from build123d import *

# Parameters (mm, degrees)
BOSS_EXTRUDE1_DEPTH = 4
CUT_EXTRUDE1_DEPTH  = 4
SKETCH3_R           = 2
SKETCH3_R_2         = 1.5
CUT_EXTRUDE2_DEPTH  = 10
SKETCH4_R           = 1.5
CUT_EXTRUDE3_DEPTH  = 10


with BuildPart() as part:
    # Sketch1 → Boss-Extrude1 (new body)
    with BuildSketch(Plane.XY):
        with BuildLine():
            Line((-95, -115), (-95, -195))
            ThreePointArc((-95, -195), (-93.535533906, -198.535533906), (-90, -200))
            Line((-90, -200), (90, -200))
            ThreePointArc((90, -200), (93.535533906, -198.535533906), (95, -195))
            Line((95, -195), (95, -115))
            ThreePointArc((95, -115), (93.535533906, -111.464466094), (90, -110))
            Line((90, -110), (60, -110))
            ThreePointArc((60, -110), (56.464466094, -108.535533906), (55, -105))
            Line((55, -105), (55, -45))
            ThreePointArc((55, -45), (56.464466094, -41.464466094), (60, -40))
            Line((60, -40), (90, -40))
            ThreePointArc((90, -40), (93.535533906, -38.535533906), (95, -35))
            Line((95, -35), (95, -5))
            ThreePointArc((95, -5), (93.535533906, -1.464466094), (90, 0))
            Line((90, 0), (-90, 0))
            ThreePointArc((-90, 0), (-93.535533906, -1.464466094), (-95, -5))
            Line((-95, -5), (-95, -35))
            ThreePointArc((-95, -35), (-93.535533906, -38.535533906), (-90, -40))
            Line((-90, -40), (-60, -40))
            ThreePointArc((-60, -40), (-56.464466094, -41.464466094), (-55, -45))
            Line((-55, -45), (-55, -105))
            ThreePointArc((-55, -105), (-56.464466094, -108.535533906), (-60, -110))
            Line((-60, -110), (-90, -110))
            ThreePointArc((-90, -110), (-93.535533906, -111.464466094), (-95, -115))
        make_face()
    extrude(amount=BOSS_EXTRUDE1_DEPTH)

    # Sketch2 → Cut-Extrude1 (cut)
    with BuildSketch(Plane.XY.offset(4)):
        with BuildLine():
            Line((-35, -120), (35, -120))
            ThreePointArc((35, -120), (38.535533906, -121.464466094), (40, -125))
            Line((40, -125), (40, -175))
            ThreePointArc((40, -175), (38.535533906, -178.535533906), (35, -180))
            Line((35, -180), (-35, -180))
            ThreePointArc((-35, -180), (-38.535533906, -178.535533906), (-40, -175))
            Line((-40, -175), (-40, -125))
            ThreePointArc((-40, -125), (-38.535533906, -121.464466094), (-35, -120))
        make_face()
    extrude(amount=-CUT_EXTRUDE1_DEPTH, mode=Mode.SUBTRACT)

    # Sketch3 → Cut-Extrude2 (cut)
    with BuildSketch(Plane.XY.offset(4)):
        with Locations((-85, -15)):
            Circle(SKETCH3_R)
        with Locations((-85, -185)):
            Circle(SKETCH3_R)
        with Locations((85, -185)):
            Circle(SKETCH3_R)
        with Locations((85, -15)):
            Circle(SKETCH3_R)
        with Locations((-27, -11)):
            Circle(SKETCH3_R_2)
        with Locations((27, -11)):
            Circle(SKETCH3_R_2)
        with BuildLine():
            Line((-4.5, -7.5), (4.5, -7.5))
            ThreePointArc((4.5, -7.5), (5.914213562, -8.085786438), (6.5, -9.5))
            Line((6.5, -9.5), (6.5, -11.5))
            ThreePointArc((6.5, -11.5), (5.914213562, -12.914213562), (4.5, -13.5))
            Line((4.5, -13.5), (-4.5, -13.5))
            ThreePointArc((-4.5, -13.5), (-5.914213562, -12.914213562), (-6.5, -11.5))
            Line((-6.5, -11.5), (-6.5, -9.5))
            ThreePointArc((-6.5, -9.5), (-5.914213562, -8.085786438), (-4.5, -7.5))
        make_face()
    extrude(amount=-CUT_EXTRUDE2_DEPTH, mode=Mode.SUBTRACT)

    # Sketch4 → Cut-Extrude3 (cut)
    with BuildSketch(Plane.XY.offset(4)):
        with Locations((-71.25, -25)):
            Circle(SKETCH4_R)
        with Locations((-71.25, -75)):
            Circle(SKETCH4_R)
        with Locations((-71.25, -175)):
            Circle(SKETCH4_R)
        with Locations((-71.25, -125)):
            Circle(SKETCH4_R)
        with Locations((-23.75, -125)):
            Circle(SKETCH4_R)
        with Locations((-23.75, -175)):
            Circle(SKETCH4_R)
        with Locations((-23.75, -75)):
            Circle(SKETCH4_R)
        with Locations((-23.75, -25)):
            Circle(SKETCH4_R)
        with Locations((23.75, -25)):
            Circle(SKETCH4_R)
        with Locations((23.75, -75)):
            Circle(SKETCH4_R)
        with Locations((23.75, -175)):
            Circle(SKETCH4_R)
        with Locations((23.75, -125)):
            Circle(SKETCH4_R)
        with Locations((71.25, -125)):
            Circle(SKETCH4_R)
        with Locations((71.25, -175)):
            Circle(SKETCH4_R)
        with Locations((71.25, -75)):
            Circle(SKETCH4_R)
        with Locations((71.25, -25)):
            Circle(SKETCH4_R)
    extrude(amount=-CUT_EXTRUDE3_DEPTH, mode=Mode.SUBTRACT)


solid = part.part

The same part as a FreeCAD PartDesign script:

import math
import FreeCAD as App
import Part
import Sketcher
from FreeCAD import Vector

doc = App.newDocument("Part")
body = doc.addObject("PartDesign::Body", "Body")

sketch1 = body.newObject("Sketcher::SketchObject", "Sketch")
sketch1.AttachmentSupport = (doc.getObject("XY_Plane"), [""])
sketch1.MapMode = "FlatFace"
sketch1.addGeometry(Part.LineSegment(Vector(-95, -115, 0), Vector(-95, -195, 0)), False)
sketch1.addGeometry(Part.ArcOfCircle(Part.Circle(Vector(-90, -195, 0), Vector(0, 0, 1), 5), math.radians(180), math.radians(270)), False)
sketch1.addGeometry(Part.LineSegment(Vector(-90, -200, 0), Vector(90, -200, 0)), False)
sketch1.addGeometry(Part.ArcOfCircle(Part.Circle(Vector(90, -195, 0), Vector(0, 0, 1), 5), math.radians(-90), math.radians(0)), False)
sketch1.addGeometry(Part.LineSegment(Vector(95, -195, 0), Vector(95, -115, 0)), False)
sketch1.addGeometry(Part.ArcOfCircle(Part.Circle(Vector(90, -115, 0), Vector(0, 0, 1), 5), math.radians(0), math.radians(90)), False)
sketch1.addGeometry(Part.LineSegment(Vector(90, -110, 0), Vector(60, -110, 0)), False)
sketch1.addGeometry(Part.ArcOfCircle(Part.Circle(Vector(60, -105, 0), Vector(0, 0, 1), 5), math.radians(180), math.radians(270)), False)
sketch1.addGeometry(Part.LineSegment(Vector(55, -105, 0), Vector(55, -45, 0)), False)
sketch1.addGeometry(Part.ArcOfCircle(Part.Circle(Vector(60, -45, 0), Vector(0, 0, 1), 5), math.radians(90), math.radians(180)), False)
sketch1.addGeometry(Part.LineSegment(Vector(60, -40, 0), Vector(90, -40, 0)), False)
sketch1.addGeometry(Part.ArcOfCircle(Part.Circle(Vector(90, -35, 0), Vector(0, 0, 1), 5), math.radians(-90), math.radians(0)), False)
sketch1.addGeometry(Part.LineSegment(Vector(95, -35, 0), Vector(95, -5, 0)), False)
sketch1.addGeometry(Part.ArcOfCircle(Part.Circle(Vector(90, -5, 0), Vector(0, 0, 1), 5), math.radians(0), math.radians(90)), False)
sketch1.addGeometry(Part.LineSegment(Vector(90, 0, 0), Vector(-90, 0, 0)), False)
sketch1.addGeometry(Part.ArcOfCircle(Part.Circle(Vector(-90, -5, 0), Vector(0, 0, 1), 5), math.radians(90), math.radians(180)), False)
sketch1.addGeometry(Part.LineSegment(Vector(-95, -5, 0), Vector(-95, -35, 0)), False)
sketch1.addGeometry(Part.ArcOfCircle(Part.Circle(Vector(-90, -35, 0), Vector(0, 0, 1), 5), math.radians(180), math.radians(270)), False)
sketch1.addGeometry(Part.LineSegment(Vector(-90, -40, 0), Vector(-60, -40, 0)), False)
sketch1.addGeometry(Part.ArcOfCircle(Part.Circle(Vector(-60, -45, 0), Vector(0, 0, 1), 5), math.radians(0), math.radians(90)), False)
sketch1.addGeometry(Part.LineSegment(Vector(-55, -45, 0), Vector(-55, -105, 0)), False)
sketch1.addGeometry(Part.ArcOfCircle(Part.Circle(Vector(-60, -105, 0), Vector(0, 0, 1), 5), math.radians(-90), math.radians(0)), False)
sketch1.addGeometry(Part.LineSegment(Vector(-60, -110, 0), Vector(-90, -110, 0)), False)
sketch1.addGeometry(Part.ArcOfCircle(Part.Circle(Vector(-90, -115, 0), Vector(0, 0, 1), 5), math.radians(90), math.radians(180)), False)
sketch1.addConstraint(Sketcher.Constraint("Tangent", 0, 2, 1, 1))
sketch1.addConstraint(Sketcher.Constraint("Tangent", 1, 2, 2, 1))
sketch1.addConstraint(Sketcher.Constraint("Tangent", 2, 2, 3, 1))
sketch1.addConstraint(Sketcher.Constraint("Tangent", 3, 2, 4, 1))
sketch1.addConstraint(Sketcher.Constraint("Tangent", 4, 2, 5, 1))
sketch1.addConstraint(Sketcher.Constraint("Tangent", 5, 2, 6, 1))
sketch1.addConstraint(Sketcher.Constraint("Tangent", 6, 2, 7, 2))
sketch1.addConstraint(Sketcher.Constraint("Tangent", 7, 1, 8, 1))
sketch1.addConstraint(Sketcher.Constraint("Tangent", 8, 2, 9, 2))
sketch1.addConstraint(Sketcher.Constraint("Tangent", 9, 1, 10, 1))
sketch1.addConstraint(Sketcher.Constraint("Tangent", 10, 2, 11, 1))
sketch1.addConstraint(Sketcher.Constraint("Tangent", 11, 2, 12, 1))
sketch1.addConstraint(Sketcher.Constraint("Tangent", 12, 2, 13, 1))
sketch1.addConstraint(Sketcher.Constraint("Tangent", 13, 2, 14, 1))
sketch1.addConstraint(Sketcher.Constraint("Tangent", 14, 2, 15, 1))
sketch1.addConstraint(Sketcher.Constraint("Tangent", 15, 2, 16, 1))
sketch1.addConstraint(Sketcher.Constraint("Tangent", 16, 2, 17, 1))
sketch1.addConstraint(Sketcher.Constraint("Tangent", 17, 2, 18, 1))
sketch1.addConstraint(Sketcher.Constraint("Tangent", 18, 2, 19, 2))
sketch1.addConstraint(Sketcher.Constraint("Tangent", 19, 1, 20, 1))
sketch1.addConstraint(Sketcher.Constraint("Tangent", 20, 2, 21, 2))
sketch1.addConstraint(Sketcher.Constraint("Tangent", 21, 1, 22, 1))
sketch1.addConstraint(Sketcher.Constraint("Tangent", 22, 2, 23, 1))
sketch1.addConstraint(Sketcher.Constraint("Tangent", 23, 2, 0, 1))
sketch1.addConstraint(Sketcher.Constraint("Vertical", 0))
sketch1.addConstraint(Sketcher.Constraint("Horizontal", 2))
sketch1.addConstraint(Sketcher.Constraint("Vertical", 4))
sketch1.addConstraint(Sketcher.Constraint("Horizontal", 6))
sketch1.addConstraint(Sketcher.Constraint("Vertical", 8))
sketch1.addConstraint(Sketcher.Constraint("Horizontal", 10))
sketch1.addConstraint(Sketcher.Constraint("Vertical", 12))
sketch1.addConstraint(Sketcher.Constraint("Horizontal", 14))
sketch1.addConstraint(Sketcher.Constraint("Vertical", 16))
sketch1.addConstraint(Sketcher.Constraint("Horizontal", 18))
sketch1.addConstraint(Sketcher.Constraint("Vertical", 20))
sketch1.addConstraint(Sketcher.Constraint("Horizontal", 22))
sketch1.addConstraint(Sketcher.Constraint("Equal", 1, 3))
sketch1.addConstraint(Sketcher.Constraint("Equal", 3, 5))
sketch1.addConstraint(Sketcher.Constraint("Equal", 5, 7))
sketch1.addConstraint(Sketcher.Constraint("Equal", 7, 9))
sketch1.addConstraint(Sketcher.Constraint("Equal", 9, 11))
sketch1.addConstraint(Sketcher.Constraint("Equal", 11, 13))
sketch1.addConstraint(Sketcher.Constraint("Equal", 13, 15))
sketch1.addConstraint(Sketcher.Constraint("Equal", 15, 17))
sketch1.addConstraint(Sketcher.Constraint("Equal", 17, 19))
sketch1.addConstraint(Sketcher.Constraint("Equal", 19, 21))
sketch1.addConstraint(Sketcher.Constraint("Equal", 21, 23))
sketch1.addConstraint(Sketcher.Constraint("Symmetric", 13, 2, 14, 2, -1, 1))
sketch1.addConstraint(Sketcher.Constraint("Symmetric", 9, 3, 19, 3, -2))
sketch1.addConstraint(Sketcher.Constraint("Symmetric", 5, 3, 23, 3, -2))
sketch1.addConstraint(Sketcher.Constraint("Vertical", 5, 3, 11, 3))
sketch1.addConstraint(Sketcher.Constraint("Equal", 22, 12))
sketch1.addConstraint(Sketcher.Constraint("Radius", 1, 5.0))
sketch1.addConstraint(Sketcher.Constraint("DistanceX", 2, 1, 2, 2, 180.0))
sketch1.addConstraint(Sketcher.Constraint("DistanceX", 6, 2, 6, 1, 30.0))
sketch1.addConstraint(Sketcher.Constraint("DistanceY", 0, 2, 0, 1, 80.0))
sketch1.addConstraint(Sketcher.Constraint("DistanceY", 8, 1, 8, 2, 60.0))
pad1 = body.newObject("PartDesign::Pad", "Pad")
pad1.Profile = sketch1
pad1.Length = 4

sketch2 = body.newObject("Sketcher::SketchObject", "Sketch001")
sketch2.AttachmentSupport = (doc.getObject("XY_Plane"), [""])
sketch2.MapMode = "FlatFace"
sketch2.AttachmentOffset = App.Placement(Vector(0, 0, 4), App.Rotation())
sketch2.addGeometry(Part.LineSegment(Vector(35, -120, 0), Vector(-35, -120, 0)), False)
sketch2.addGeometry(Part.ArcOfCircle(Part.Circle(Vector(-35, -125, 0), Vector(0, 0, 1), 5), math.radians(90), math.radians(180)), False)
sketch2.addGeometry(Part.LineSegment(Vector(-40, -125, 0), Vector(-40, -175, 0)), False)
sketch2.addGeometry(Part.ArcOfCircle(Part.Circle(Vector(-35, -175, 0), Vector(0, 0, 1), 5), math.radians(180), math.radians(270)), False)
sketch2.addGeometry(Part.LineSegment(Vector(-35, -180, 0), Vector(35, -180, 0)), False)
sketch2.addGeometry(Part.ArcOfCircle(Part.Circle(Vector(35, -175, 0), Vector(0, 0, 1), 5), math.radians(-90), math.radians(0)), False)
sketch2.addGeometry(Part.LineSegment(Vector(40, -175, 0), Vector(40, -125, 0)), False)
sketch2.addGeometry(Part.ArcOfCircle(Part.Circle(Vector(35, -125, 0), Vector(0, 0, 1), 5), math.radians(0), math.radians(90)), False)
sketch2.addConstraint(Sketcher.Constraint("Tangent", 0, 2, 1, 1))
sketch2.addConstraint(Sketcher.Constraint("Tangent", 1, 2, 2, 1))
sketch2.addConstraint(Sketcher.Constraint("Tangent", 2, 2, 3, 1))
sketch2.addConstraint(Sketcher.Constraint("Tangent", 3, 2, 4, 1))
sketch2.addConstraint(Sketcher.Constraint("Tangent", 4, 2, 5, 1))
sketch2.addConstraint(Sketcher.Constraint("Tangent", 5, 2, 6, 1))
sketch2.addConstraint(Sketcher.Constraint("Tangent", 6, 2, 7, 1))
sketch2.addConstraint(Sketcher.Constraint("Tangent", 7, 2, 0, 1))
sketch2.addConstraint(Sketcher.Constraint("Horizontal", 0))
sketch2.addConstraint(Sketcher.Constraint("Vertical", 2))
sketch2.addConstraint(Sketcher.Constraint("Horizontal", 4))
sketch2.addConstraint(Sketcher.Constraint("Vertical", 6))
sketch2.addConstraint(Sketcher.Constraint("Equal", 1, 3))
sketch2.addConstraint(Sketcher.Constraint("Equal", 3, 5))
sketch2.addConstraint(Sketcher.Constraint("Equal", 5, 7))
sketch2.addConstraint(Sketcher.Constraint("Radius", 1, 5.0))
sketch2.addConstraint(Sketcher.Constraint("DistanceX", 0, 2, 0, 1, 70.0))
sketch2.addConstraint(Sketcher.Constraint("DistanceY", 2, 2, 2, 1, 50.0))
sketch2.addConstraint(Sketcher.Constraint("DistanceX", 1, 3, -1, 1, 35.0))
sketch2.addConstraint(Sketcher.Constraint("DistanceY", 1, 3, -1, 1, 125.0))
pocket1 = body.newObject("PartDesign::Pocket", "Pocket")
pocket1.Profile = sketch2
pocket1.Length = 4

sketch3 = body.newObject("Sketcher::SketchObject", "Sketch002")
sketch3.AttachmentSupport = (doc.getObject("XY_Plane"), [""])
sketch3.MapMode = "FlatFace"
sketch3.AttachmentOffset = App.Placement(Vector(0, 0, 4), App.Rotation())
sketch3.addGeometry(Part.Circle(Vector(-85, -15, 0), Vector(0, 0, 1), 2), False)
sketch3.addGeometry(Part.Circle(Vector(-85, -185, 0), Vector(0, 0, 1), 2), False)
sketch3.addGeometry(Part.Circle(Vector(85, -185, 0), Vector(0, 0, 1), 2), False)
sketch3.addGeometry(Part.Circle(Vector(85, -15, 0), Vector(0, 0, 1), 2), False)
sketch3.addGeometry(Part.Circle(Vector(-27, -11, 0), Vector(0, 0, 1), 1.5), False)
sketch3.addGeometry(Part.Circle(Vector(27, -11, 0), Vector(0, 0, 1), 1.5), False)
sketch3.addGeometry(Part.LineSegment(Vector(4.5, -7.5, 0), Vector(-4.5, -7.5, 0)), False)
sketch3.addGeometry(Part.ArcOfCircle(Part.Circle(Vector(-4.5, -9.5, 0), Vector(0, 0, 1), 2), math.radians(90), math.radians(180)), False)
sketch3.addGeometry(Part.LineSegment(Vector(-6.5, -9.5, 0), Vector(-6.5, -11.5, 0)), False)
sketch3.addGeometry(Part.ArcOfCircle(Part.Circle(Vector(-4.5, -11.5, 0), Vector(0, 0, 1), 2), math.radians(-180), math.radians(-90)), False)
sketch3.addGeometry(Part.LineSegment(Vector(-4.5, -13.5, 0), Vector(4.5, -13.5, 0)), False)
sketch3.addGeometry(Part.ArcOfCircle(Part.Circle(Vector(4.5, -11.5, 0), Vector(0, 0, 1), 2), math.radians(-90), math.radians(0)), False)
sketch3.addGeometry(Part.LineSegment(Vector(6.5, -11.5, 0), Vector(6.5, -9.5, 0)), False)
sketch3.addGeometry(Part.ArcOfCircle(Part.Circle(Vector(4.5, -9.5, 0), Vector(0, 0, 1), 2), math.radians(0), math.radians(90)), False)
sketch3.addConstraint(Sketcher.Constraint("Tangent", 6, 2, 7, 1))
sketch3.addConstraint(Sketcher.Constraint("Tangent", 7, 2, 8, 1))
sketch3.addConstraint(Sketcher.Constraint("Tangent", 8, 2, 9, 1))
sketch3.addConstraint(Sketcher.Constraint("Tangent", 9, 2, 10, 1))
sketch3.addConstraint(Sketcher.Constraint("Tangent", 10, 2, 11, 1))
sketch3.addConstraint(Sketcher.Constraint("Tangent", 11, 2, 12, 1))
sketch3.addConstraint(Sketcher.Constraint("Tangent", 12, 2, 13, 1))
sketch3.addConstraint(Sketcher.Constraint("Tangent", 13, 2, 6, 1))
sketch3.addConstraint(Sketcher.Constraint("Horizontal", 6))
sketch3.addConstraint(Sketcher.Constraint("Vertical", 8))
sketch3.addConstraint(Sketcher.Constraint("Horizontal", 10))
sketch3.addConstraint(Sketcher.Constraint("Vertical", 12))
sketch3.addConstraint(Sketcher.Constraint("Equal", 0, 1))
sketch3.addConstraint(Sketcher.Constraint("Equal", 1, 2))
sketch3.addConstraint(Sketcher.Constraint("Equal", 2, 3))
sketch3.addConstraint(Sketcher.Constraint("Equal", 4, 5))
sketch3.addConstraint(Sketcher.Constraint("Equal", 3, 7))
sketch3.addConstraint(Sketcher.Constraint("Equal", 7, 9))
sketch3.addConstraint(Sketcher.Constraint("Equal", 9, 11))
sketch3.addConstraint(Sketcher.Constraint("Equal", 11, 13))
sketch3.addConstraint(Sketcher.Constraint("Symmetric", 1, 3, 2, 3, -2))
sketch3.addConstraint(Sketcher.Constraint("Symmetric", 0, 3, 3, 3, -2))
sketch3.addConstraint(Sketcher.Constraint("Symmetric", 4, 3, 5, 3, -2))
sketch3.addConstraint(Sketcher.Constraint("Vertical", 0, 3, 1, 3))
sketch3.addConstraint(Sketcher.Constraint("Diameter", 0, 4.0))
sketch3.addConstraint(Sketcher.Constraint("Diameter", 4, 3.0))
sketch3.addConstraint(Sketcher.Constraint("DistanceX", 6, 2, 6, 1, 9.0))
sketch3.addConstraint(Sketcher.Constraint("DistanceY", 8, 2, 8, 1, 2.0))
sketch3.addConstraint(Sketcher.Constraint("DistanceX", 0, 3, -1, 1, 85.0))
sketch3.addConstraint(Sketcher.Constraint("DistanceY", 0, 3, -1, 1, 15.0))
sketch3.addConstraint(Sketcher.Constraint("DistanceY", 1, 3, -1, 1, 185.0))
sketch3.addConstraint(Sketcher.Constraint("DistanceX", 4, 3, -1, 1, 27.0))
sketch3.addConstraint(Sketcher.Constraint("DistanceY", 4, 3, -1, 1, 11.0))
sketch3.addConstraint(Sketcher.Constraint("DistanceX", 7, 3, -1, 1, 4.5))
sketch3.addConstraint(Sketcher.Constraint("DistanceY", 7, 3, -1, 1, 9.5))
pocket2 = body.newObject("PartDesign::Pocket", "Pocket001")
pocket2.Profile = sketch3
pocket2.Length = 10

sketch4 = body.newObject("Sketcher::SketchObject", "Sketch003")
sketch4.AttachmentSupport = (doc.getObject("XY_Plane"), [""])
sketch4.MapMode = "FlatFace"
sketch4.AttachmentOffset = App.Placement(Vector(0, 0, 4), App.Rotation())
sketch4.addGeometry(Part.Circle(Vector(-71.2, -25, 0), Vector(0, 0, 1), 1.5), False)
sketch4.addGeometry(Part.Circle(Vector(-71.2, -75, 0), Vector(0, 0, 1), 1.5), False)
sketch4.addGeometry(Part.Circle(Vector(-71.2, -175, 0), Vector(0, 0, 1), 1.5), False)
sketch4.addGeometry(Part.Circle(Vector(-71.2, -125, 0), Vector(0, 0, 1), 1.5), False)
sketch4.addGeometry(Part.Circle(Vector(-23.8, -125, 0), Vector(0, 0, 1), 1.5), False)
sketch4.addGeometry(Part.Circle(Vector(-23.8, -175, 0), Vector(0, 0, 1), 1.5), False)
sketch4.addGeometry(Part.Circle(Vector(-23.8, -75, 0), Vector(0, 0, 1), 1.5), False)
sketch4.addGeometry(Part.Circle(Vector(-23.8, -25, 0), Vector(0, 0, 1), 1.5), False)
sketch4.addGeometry(Part.Circle(Vector(23.8, -25, 0), Vector(0, 0, 1), 1.5), False)
sketch4.addGeometry(Part.Circle(Vector(23.8, -75, 0), Vector(0, 0, 1), 1.5), False)
sketch4.addGeometry(Part.Circle(Vector(23.8, -175, 0), Vector(0, 0, 1), 1.5), False)
sketch4.addGeometry(Part.Circle(Vector(23.8, -125, 0), Vector(0, 0, 1), 1.5), False)
sketch4.addGeometry(Part.Circle(Vector(71.2, -125, 0), Vector(0, 0, 1), 1.5), False)
sketch4.addGeometry(Part.Circle(Vector(71.2, -175, 0), Vector(0, 0, 1), 1.5), False)
sketch4.addGeometry(Part.Circle(Vector(71.2, -75, 0), Vector(0, 0, 1), 1.5), False)
sketch4.addGeometry(Part.Circle(Vector(71.2, -25, 0), Vector(0, 0, 1), 1.5), False)
sketch4.addConstraint(Sketcher.Constraint("Equal", 0, 1))
sketch4.addConstraint(Sketcher.Constraint("Equal", 1, 2))
sketch4.addConstraint(Sketcher.Constraint("Equal", 2, 3))
sketch4.addConstraint(Sketcher.Constraint("Equal", 3, 4))
sketch4.addConstraint(Sketcher.Constraint("Equal", 4, 5))
sketch4.addConstraint(Sketcher.Constraint("Equal", 5, 6))
sketch4.addConstraint(Sketcher.Constraint("Equal", 6, 7))
sketch4.addConstraint(Sketcher.Constraint("Equal", 7, 8))
sketch4.addConstraint(Sketcher.Constraint("Equal", 8, 9))
sketch4.addConstraint(Sketcher.Constraint("Equal", 9, 10))
sketch4.addConstraint(Sketcher.Constraint("Equal", 10, 11))
sketch4.addConstraint(Sketcher.Constraint("Equal", 11, 12))
sketch4.addConstraint(Sketcher.Constraint("Equal", 12, 13))
sketch4.addConstraint(Sketcher.Constraint("Equal", 13, 14))
sketch4.addConstraint(Sketcher.Constraint("Equal", 14, 15))
sketch4.addConstraint(Sketcher.Constraint("Symmetric", 7, 3, 8, 3, -2))
sketch4.addConstraint(Sketcher.Constraint("Symmetric", 6, 3, 9, 3, -2))
sketch4.addConstraint(Sketcher.Constraint("Symmetric", 5, 3, 10, 3, -2))
sketch4.addConstraint(Sketcher.Constraint("Symmetric", 4, 3, 11, 3, -2))
sketch4.addConstraint(Sketcher.Constraint("Symmetric", 3, 3, 12, 3, -2))
sketch4.addConstraint(Sketcher.Constraint("Symmetric", 2, 3, 13, 3, -2))
sketch4.addConstraint(Sketcher.Constraint("Symmetric", 1, 3, 14, 3, -2))
sketch4.addConstraint(Sketcher.Constraint("Symmetric", 0, 3, 15, 3, -2))
sketch4.addConstraint(Sketcher.Constraint("Horizontal", 3, 3, 4, 3))
sketch4.addConstraint(Sketcher.Constraint("Horizontal", 2, 3, 5, 3))
sketch4.addConstraint(Sketcher.Constraint("Horizontal", 1, 3, 6, 3))
sketch4.addConstraint(Sketcher.Constraint("Horizontal", 0, 3, 7, 3))
sketch4.addConstraint(Sketcher.Constraint("Vertical", 0, 3, 1, 3))
sketch4.addConstraint(Sketcher.Constraint("Vertical", 1, 3, 2, 3))
sketch4.addConstraint(Sketcher.Constraint("Vertical", 2, 3, 3, 3))
sketch4.addConstraint(Sketcher.Constraint("Vertical", 4, 3, 5, 3))
sketch4.addConstraint(Sketcher.Constraint("Vertical", 5, 3, 6, 3))
sketch4.addConstraint(Sketcher.Constraint("Vertical", 6, 3, 7, 3))
sketch4.addConstraint(Sketcher.Constraint("Diameter", 0, 3.0))
sketch4.addConstraint(Sketcher.Constraint("DistanceY", 0, 3, -1, 1, 25.0))
sketch4.addConstraint(Sketcher.Constraint("DistanceY", 1, 3, -1, 1, 75.0))
sketch4.addConstraint(Sketcher.Constraint("DistanceY", 2, 3, -1, 1, 175.0))
sketch4.addConstraint(Sketcher.Constraint("DistanceY", 3, 3, -1, 1, 125.0))
sketch4.addConstraint(Sketcher.Constraint("DistanceX", 0, 3, 8, 3, 95.0))
sketch4.addConstraint(Sketcher.Constraint("DistanceX", 3, 3, 4, 3, 47.5))
pocket3 = body.newObject("PartDesign::Pocket", "Pocket002")
pocket3.Profile = sketch4
pocket3.Length = 10

doc.recompute()
